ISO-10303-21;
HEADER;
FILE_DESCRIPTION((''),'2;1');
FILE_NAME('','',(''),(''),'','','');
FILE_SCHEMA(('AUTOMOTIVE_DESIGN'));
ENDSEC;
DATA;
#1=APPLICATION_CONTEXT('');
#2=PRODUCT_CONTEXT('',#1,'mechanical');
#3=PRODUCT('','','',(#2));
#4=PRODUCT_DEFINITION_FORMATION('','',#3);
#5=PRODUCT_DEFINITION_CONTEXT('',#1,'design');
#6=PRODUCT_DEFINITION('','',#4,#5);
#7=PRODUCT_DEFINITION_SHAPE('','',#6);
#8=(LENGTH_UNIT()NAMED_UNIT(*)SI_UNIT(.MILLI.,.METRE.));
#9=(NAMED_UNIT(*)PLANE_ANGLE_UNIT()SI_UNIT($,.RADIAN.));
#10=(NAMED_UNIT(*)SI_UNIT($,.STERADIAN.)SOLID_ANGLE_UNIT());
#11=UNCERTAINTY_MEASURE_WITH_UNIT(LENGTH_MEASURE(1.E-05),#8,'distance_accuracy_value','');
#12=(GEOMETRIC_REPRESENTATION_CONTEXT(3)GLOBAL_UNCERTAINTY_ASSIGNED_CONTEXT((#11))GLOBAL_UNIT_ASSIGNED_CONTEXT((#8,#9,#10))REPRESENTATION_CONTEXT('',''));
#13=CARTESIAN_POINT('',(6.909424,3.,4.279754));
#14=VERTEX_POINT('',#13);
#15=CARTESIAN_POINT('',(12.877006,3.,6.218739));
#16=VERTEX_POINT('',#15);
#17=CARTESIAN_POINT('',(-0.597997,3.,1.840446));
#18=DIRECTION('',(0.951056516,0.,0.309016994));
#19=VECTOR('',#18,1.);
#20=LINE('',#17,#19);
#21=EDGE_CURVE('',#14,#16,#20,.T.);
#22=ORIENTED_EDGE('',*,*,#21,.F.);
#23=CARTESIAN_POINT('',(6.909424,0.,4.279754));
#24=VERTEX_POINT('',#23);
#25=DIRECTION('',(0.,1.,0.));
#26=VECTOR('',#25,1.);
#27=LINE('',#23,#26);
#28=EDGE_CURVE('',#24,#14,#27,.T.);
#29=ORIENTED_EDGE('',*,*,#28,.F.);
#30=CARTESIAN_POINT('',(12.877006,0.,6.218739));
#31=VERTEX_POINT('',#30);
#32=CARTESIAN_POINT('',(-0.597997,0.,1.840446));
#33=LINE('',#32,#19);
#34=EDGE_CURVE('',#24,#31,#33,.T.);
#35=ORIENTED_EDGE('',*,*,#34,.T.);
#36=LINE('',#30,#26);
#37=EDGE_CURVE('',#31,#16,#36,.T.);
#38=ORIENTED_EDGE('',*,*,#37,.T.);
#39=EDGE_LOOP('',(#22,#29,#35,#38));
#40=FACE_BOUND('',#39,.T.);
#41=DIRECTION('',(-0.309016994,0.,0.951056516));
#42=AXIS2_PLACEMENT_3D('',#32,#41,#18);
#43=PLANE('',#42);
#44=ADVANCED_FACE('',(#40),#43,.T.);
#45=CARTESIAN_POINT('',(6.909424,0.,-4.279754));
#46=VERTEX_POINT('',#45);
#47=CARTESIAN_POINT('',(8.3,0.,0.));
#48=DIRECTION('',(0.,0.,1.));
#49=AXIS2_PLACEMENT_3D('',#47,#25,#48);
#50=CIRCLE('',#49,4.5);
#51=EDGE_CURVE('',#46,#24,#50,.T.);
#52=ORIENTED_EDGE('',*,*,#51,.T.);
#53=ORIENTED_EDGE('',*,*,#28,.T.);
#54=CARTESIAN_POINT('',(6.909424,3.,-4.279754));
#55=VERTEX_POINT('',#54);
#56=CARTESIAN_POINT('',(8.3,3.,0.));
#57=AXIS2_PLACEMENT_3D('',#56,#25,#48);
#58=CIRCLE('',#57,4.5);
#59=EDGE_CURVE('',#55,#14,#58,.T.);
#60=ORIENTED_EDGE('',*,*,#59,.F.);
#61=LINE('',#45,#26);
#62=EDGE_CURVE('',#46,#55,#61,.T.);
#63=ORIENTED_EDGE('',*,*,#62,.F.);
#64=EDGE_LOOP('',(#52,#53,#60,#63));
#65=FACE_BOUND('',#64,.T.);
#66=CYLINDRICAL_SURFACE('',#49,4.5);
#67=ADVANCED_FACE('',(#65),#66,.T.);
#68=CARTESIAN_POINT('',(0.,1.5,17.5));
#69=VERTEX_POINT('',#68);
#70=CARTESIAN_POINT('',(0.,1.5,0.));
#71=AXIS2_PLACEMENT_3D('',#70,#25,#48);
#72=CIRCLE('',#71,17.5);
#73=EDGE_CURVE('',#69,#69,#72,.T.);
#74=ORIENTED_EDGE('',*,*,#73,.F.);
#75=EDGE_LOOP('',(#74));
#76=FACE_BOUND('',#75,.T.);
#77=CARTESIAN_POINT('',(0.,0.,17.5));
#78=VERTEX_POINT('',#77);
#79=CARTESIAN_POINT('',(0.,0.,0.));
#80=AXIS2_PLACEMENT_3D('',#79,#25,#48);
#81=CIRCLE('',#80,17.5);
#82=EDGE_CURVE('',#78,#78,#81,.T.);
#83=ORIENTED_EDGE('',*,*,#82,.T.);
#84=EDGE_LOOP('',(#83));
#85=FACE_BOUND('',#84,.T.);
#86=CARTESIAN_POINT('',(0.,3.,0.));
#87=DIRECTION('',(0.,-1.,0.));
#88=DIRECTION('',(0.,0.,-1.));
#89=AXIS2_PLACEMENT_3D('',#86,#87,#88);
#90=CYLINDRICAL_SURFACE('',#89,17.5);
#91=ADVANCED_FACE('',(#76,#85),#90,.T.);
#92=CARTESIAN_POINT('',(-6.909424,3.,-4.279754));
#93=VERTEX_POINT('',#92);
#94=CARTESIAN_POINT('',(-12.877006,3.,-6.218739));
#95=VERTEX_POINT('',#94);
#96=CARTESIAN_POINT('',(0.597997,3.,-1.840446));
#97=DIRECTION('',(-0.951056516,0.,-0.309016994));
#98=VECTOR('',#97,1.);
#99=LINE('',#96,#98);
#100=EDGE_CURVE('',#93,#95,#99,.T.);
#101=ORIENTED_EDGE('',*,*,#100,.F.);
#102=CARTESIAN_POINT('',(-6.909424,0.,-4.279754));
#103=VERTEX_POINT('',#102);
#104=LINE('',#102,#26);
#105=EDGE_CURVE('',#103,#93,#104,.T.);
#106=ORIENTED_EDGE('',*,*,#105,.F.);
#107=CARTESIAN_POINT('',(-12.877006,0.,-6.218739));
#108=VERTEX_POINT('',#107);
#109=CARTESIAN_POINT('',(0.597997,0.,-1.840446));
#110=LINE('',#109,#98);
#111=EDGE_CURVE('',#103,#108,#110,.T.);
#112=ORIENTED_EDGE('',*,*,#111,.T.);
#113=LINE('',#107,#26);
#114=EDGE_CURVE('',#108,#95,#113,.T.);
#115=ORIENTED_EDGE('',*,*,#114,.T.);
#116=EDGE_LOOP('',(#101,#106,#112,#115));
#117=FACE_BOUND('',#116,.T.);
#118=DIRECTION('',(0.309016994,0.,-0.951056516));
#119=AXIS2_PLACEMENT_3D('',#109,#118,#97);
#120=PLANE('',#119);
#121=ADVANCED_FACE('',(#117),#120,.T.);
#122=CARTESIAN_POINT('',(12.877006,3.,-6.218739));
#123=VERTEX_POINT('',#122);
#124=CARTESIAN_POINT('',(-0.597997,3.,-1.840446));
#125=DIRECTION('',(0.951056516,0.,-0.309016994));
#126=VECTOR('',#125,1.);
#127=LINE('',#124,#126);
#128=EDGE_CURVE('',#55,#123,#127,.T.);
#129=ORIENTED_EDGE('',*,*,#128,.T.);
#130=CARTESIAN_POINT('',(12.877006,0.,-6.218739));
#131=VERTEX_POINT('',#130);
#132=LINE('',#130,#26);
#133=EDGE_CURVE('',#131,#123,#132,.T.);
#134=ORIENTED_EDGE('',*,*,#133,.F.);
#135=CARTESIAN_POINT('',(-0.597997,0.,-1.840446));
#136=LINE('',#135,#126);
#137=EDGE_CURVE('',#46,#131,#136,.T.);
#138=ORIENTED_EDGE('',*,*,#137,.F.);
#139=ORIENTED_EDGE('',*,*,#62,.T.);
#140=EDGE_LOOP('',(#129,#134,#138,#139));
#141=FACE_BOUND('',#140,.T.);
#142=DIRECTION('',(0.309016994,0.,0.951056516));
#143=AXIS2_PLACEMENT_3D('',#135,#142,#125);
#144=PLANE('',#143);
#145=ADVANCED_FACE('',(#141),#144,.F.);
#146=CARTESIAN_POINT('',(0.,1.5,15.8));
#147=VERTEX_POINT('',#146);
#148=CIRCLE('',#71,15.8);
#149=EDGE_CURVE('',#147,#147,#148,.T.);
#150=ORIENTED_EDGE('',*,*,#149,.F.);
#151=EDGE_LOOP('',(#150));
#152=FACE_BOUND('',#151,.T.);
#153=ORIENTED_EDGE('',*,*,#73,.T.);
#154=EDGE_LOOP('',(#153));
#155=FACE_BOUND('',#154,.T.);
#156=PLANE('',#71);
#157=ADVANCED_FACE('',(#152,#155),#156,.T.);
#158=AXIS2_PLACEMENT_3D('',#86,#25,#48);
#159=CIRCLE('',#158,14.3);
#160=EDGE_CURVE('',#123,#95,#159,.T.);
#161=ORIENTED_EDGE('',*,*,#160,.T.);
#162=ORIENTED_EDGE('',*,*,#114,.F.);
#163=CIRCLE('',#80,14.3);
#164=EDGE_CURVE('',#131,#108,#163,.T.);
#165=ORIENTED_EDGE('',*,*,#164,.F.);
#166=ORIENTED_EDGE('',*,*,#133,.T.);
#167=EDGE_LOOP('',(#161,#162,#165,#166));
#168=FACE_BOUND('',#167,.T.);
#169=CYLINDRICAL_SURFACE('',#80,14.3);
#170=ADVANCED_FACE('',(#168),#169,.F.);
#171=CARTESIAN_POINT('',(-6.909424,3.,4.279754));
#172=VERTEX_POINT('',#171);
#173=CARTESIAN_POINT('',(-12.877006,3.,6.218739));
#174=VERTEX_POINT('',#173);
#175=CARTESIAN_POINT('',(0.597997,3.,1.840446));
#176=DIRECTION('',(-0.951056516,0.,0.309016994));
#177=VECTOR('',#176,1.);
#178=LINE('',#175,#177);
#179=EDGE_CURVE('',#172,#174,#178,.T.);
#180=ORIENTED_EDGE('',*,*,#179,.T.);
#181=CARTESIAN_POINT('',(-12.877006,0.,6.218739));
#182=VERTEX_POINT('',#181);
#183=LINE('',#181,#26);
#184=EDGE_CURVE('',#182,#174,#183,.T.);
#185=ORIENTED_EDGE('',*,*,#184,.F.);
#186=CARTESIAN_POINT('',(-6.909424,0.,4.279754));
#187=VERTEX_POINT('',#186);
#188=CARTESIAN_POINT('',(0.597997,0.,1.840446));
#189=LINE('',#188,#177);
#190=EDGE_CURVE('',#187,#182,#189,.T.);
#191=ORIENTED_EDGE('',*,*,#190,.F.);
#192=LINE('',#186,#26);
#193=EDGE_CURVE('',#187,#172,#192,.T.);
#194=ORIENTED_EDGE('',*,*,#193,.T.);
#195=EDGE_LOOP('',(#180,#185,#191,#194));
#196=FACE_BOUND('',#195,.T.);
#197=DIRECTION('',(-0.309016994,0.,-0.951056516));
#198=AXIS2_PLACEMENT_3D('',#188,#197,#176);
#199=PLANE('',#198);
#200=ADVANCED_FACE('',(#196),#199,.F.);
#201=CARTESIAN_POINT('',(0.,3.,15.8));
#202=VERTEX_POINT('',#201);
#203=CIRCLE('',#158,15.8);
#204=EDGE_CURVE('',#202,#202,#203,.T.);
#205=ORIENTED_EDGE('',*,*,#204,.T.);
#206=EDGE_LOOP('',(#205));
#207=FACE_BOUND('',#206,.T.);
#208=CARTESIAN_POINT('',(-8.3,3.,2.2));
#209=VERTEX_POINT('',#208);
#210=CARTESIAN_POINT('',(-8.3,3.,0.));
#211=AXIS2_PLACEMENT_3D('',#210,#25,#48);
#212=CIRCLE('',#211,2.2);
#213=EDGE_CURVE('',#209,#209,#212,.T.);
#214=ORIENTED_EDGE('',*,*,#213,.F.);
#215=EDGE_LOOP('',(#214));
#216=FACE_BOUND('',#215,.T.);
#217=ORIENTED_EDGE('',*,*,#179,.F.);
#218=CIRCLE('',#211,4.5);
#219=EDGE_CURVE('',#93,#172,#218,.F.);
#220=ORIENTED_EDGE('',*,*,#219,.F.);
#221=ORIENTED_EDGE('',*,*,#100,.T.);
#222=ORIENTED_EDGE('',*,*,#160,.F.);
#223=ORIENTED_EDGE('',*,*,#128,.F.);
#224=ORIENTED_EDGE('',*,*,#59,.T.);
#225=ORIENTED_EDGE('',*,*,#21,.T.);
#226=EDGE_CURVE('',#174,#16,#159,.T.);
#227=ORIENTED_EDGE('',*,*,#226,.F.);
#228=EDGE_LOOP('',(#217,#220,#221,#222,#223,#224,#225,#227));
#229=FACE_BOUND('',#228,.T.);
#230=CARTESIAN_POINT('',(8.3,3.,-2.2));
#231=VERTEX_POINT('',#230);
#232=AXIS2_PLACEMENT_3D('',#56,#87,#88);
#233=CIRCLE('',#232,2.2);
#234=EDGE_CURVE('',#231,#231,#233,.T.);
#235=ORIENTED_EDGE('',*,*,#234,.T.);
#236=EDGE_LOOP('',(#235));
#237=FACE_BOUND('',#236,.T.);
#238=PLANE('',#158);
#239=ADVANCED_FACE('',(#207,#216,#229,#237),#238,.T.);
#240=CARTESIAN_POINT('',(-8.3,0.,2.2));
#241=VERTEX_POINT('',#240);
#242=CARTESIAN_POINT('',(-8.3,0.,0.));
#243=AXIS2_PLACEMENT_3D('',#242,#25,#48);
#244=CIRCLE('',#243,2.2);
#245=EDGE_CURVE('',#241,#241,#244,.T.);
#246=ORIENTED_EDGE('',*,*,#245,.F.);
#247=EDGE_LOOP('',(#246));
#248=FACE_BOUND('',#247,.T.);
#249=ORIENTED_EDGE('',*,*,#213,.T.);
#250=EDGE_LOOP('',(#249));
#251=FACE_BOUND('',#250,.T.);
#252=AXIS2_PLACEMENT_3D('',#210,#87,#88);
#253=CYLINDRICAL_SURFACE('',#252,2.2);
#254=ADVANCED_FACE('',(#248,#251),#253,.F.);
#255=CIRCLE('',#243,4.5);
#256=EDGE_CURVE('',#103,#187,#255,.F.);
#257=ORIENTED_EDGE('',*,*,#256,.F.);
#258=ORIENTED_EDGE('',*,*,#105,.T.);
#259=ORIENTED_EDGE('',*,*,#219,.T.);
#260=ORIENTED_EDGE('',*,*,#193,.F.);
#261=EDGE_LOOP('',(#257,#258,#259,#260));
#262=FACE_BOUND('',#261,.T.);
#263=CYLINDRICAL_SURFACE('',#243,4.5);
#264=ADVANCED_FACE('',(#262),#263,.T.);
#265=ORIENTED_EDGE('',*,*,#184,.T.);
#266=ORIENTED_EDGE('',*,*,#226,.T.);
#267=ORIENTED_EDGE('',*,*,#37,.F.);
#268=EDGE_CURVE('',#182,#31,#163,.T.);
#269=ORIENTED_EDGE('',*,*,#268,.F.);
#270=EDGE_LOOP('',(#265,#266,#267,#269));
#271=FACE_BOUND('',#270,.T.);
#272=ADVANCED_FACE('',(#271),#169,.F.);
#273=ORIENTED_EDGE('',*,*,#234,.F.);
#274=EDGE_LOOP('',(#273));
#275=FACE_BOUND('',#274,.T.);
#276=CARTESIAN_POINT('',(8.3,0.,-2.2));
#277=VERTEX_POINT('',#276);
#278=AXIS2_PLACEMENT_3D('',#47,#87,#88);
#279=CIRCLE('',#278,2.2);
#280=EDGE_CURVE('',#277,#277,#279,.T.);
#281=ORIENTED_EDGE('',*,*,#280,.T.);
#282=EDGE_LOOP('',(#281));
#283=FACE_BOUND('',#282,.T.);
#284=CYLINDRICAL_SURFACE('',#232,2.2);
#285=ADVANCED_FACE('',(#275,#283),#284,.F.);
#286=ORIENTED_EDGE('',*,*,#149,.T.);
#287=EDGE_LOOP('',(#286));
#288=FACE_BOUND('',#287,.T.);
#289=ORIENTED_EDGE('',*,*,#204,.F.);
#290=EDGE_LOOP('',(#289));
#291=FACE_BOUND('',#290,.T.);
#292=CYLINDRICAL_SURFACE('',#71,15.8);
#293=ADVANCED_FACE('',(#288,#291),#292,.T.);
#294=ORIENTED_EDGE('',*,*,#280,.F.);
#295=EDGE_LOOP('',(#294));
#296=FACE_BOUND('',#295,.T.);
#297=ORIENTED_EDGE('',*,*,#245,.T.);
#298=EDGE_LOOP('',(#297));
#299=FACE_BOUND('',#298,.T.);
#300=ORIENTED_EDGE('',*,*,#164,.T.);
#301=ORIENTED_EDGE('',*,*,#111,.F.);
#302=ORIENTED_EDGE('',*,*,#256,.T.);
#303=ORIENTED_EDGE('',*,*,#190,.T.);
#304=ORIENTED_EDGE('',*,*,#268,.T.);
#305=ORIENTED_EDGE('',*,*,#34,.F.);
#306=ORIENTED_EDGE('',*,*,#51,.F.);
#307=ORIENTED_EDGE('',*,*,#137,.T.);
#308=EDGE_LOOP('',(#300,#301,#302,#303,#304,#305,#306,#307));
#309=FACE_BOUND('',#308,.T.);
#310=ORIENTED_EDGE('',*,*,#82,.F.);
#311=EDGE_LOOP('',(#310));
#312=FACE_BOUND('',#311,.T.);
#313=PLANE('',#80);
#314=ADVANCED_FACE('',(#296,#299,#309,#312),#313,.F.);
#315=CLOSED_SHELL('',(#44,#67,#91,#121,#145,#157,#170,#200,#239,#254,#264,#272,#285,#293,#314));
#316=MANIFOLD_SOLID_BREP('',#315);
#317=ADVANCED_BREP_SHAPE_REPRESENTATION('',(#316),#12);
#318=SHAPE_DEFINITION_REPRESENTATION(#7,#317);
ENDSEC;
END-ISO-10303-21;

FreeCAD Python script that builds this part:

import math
import FreeCAD as App
import Part
import Sketcher
from FreeCAD import Vector
Q = App.Units.Quantity

doc = App.newDocument("Part")
body = doc.addObject("PartDesign::Body", "Body")

# Sketch on XZ plane
sketch1 = body.newObject("Sketcher::SketchObject", "Sketch")
sketch1.AttachmentSupport = (doc.getObject("XZ_Plane"), [""])
sketch1.MapMode = "FlatFace"
sketch1.addGeometry([
    Part.Circle(Vector(0, 0, 0), Vector(0, 0, 1), 17.5),
    Part.Circle(Vector(-8.3, 0, 0), Vector(0, 0, 1), 2.2),
    Part.Circle(Vector(8.3, 0, 0), Vector(0, 0, 1), 2.2),
], False)
sketch1.addConstraint([
    Sketcher.Constraint("Coincident", 0, 3, -1, 1),
    Sketcher.Constraint("Equal", 1, 2),
    Sketcher.Constraint("Symmetric", 1, 3, 2, 3, -1, 1),
    Sketcher.Constraint("PointOnObject", 1, 3, -1),
    Sketcher.Constraint("Diameter", 0, 35.0),
    Sketcher.Constraint("Diameter", 1, 4.4),
    Sketcher.Constraint("DistanceX", 1, 3, -1, 1, 8.3),
])
pad1 = body.newObject("PartDesign::Pad", "Pad")
pad1.Profile = sketch1
pad1.Length = 3
pad1.Reversed = True

# Sketch on XZ plane
sketch2 = body.newObject("Sketcher::SketchObject", "Sketch001")
sketch2.AttachmentSupport = (doc.getObject("XZ_Plane"), [""])
sketch2.MapMode = "FlatFace"
sketch2.AttachmentOffset = App.Placement(Vector(0, 0, -3), App.Rotation())
sketch2.addGeometry([
    Part.LineSegment(Vector(-23, -23, 0), Vector(-23, 23, 0)),  # 0
    Part.LineSegment(Vector(-23, 23, 0), Vector(23, 23, 0)),  # 1
    Part.LineSegment(Vector(23, 23, 0), Vector(23, -23, 0)),  # 2
    Part.LineSegment(Vector(23, -23, 0), Vector(-23, -23, 0)),  # 3
    Part.Circle(Vector(0, 0, 0), Vector(0, 0, 1), 16),  # 4
], False)
sketch2.addConstraint([
    Sketcher.Constraint("Coincident", 0, 2, 1, 1),
    Sketcher.Constraint("Coincident", 1, 2, 2, 1),
    Sketcher.Constraint("Coincident", 2, 2, 3, 1),
    Sketcher.Constraint("Coincident", 3, 2, 0, 1),
    Sketcher.Constraint("Vertical", 0),
    Sketcher.Constraint("Horizontal", 1),
    Sketcher.Constraint("Vertical", 2),
    Sketcher.Constraint("Horizontal", 3),
    Sketcher.Constraint("Coincident", 4, 3, -1, 1),
    Sketcher.Constraint("Symmetric", 0, 2, 2, 2, -1, 1),
    Sketcher.Constraint("Equal", 3, 0),
    Sketcher.Constraint("Diameter", 4, 31.6),
    Sketcher.Constraint("DistanceX", 1, 1, 1, 2, 46.918),
])
pocket1 = body.newObject("PartDesign::Pocket", "Pocket")
pocket1.Profile = sketch2
pocket1.Length = 1.5
pocket1.Reversed = True

# Sketch on XZ plane
sketch3 = body.newObject("Sketcher::SketchObject", "Sketch002")
sketch3.AttachmentSupport = (doc.getObject("XZ_Plane"), [""])
sketch3.MapMode = "FlatFace"
sketch3.AttachmentOffset = App.Placement(Vector(0, 0, -3), App.Rotation())
sketch3.addGeometry([
    Part.ArcOfCircle(Part.Circle(Vector(-8.3, 0, 0), Vector(0, 0, 1), 4.5), math.radians(-72), math.radians(72)),  # 0
    Part.LineSegment(Vector(-6.9, 4.3, 0), Vector(-12.9, 6.2, 0)),  # 1
    Part.ArcOfCircle(Part.Circle(Vector(0, 0, 0), Vector(0, 0, 1), 14.3), math.radians(26), math.radians(154)),  # 2
    Part.LineSegment(Vector(12.9, 6.2, 0), Vector(6.9, 4.3, 0)),  # 3
    Part.ArcOfCircle(Part.Circle(Vector(8.3, 0, 0), Vector(0, 0, 1), 4.5), math.radians(108), math.radians(252)),  # 4
    Part.LineSegment(Vector(6.9, -4.3, 0), Vector(12.9, -6.2, 0)),  # 5
    Part.ArcOfCircle(Part.Circle(Vector(0, 0, 0), Vector(0, 0, 1), 14.3), math.radians(-154), math.radians(-26)),  # 6
    Part.LineSegment(Vector(-12.9, -6.2, 0), Vector(-6.9, -4.3, 0)),  # 7
], False)
sketch3.addConstraint([
    Sketcher.Constraint("Tangent", 0, 2, 1, 1),
    Sketcher.Constraint("Coincident", 1, 2, 2, 2),
    Sketcher.Constraint("Coincident", 2, 1, 3, 1),
    Sketcher.Constraint("Tangent", 3, 2, 4, 1),
    Sketcher.Constraint("Tangent", 4, 2, 5, 1),
    Sketcher.Constraint("Coincident", 5, 2, 6, 2),
    Sketcher.Constraint("Coincident", 6, 1, 7, 1),
    Sketcher.Constraint("Tangent", 7, 2, 0, 1),
    Sketcher.Constraint("Coincident", 2, 3, -1, 1),
    Sketcher.Constraint("Coincident", 6, 3, -1, 1),
    Sketcher.Constraint("Equal", 0, 4),
    Sketcher.Constraint("Equal", 2, 6),
    Sketcher.Constraint("Symmetric", 0, 3, 4, 3, -1, 1),
    Sketcher.Constraint("Symmetric", 0, 2, 3, 2, -2),
    Sketcher.Constraint("Parallel", 1, 5),
    Sketcher.Constraint("Parallel", 3, 7),
    Sketcher.Constraint("Radius", 0, 4.5),
    Sketcher.Constraint("Radius", 2, 14.3),
    Sketcher.Constraint("Angle", 1, Q("162 deg")),
    Sketcher.Constraint("DistanceX", 0, 3, -1, 1, 8.3),
])
pocket2 = body.newObject("PartDesign::Pocket", "Pocket001")
pocket2.Profile = sketch3
pocket2.Type = "ThroughAll"
pocket2.Reversed = True

doc.recompute()
